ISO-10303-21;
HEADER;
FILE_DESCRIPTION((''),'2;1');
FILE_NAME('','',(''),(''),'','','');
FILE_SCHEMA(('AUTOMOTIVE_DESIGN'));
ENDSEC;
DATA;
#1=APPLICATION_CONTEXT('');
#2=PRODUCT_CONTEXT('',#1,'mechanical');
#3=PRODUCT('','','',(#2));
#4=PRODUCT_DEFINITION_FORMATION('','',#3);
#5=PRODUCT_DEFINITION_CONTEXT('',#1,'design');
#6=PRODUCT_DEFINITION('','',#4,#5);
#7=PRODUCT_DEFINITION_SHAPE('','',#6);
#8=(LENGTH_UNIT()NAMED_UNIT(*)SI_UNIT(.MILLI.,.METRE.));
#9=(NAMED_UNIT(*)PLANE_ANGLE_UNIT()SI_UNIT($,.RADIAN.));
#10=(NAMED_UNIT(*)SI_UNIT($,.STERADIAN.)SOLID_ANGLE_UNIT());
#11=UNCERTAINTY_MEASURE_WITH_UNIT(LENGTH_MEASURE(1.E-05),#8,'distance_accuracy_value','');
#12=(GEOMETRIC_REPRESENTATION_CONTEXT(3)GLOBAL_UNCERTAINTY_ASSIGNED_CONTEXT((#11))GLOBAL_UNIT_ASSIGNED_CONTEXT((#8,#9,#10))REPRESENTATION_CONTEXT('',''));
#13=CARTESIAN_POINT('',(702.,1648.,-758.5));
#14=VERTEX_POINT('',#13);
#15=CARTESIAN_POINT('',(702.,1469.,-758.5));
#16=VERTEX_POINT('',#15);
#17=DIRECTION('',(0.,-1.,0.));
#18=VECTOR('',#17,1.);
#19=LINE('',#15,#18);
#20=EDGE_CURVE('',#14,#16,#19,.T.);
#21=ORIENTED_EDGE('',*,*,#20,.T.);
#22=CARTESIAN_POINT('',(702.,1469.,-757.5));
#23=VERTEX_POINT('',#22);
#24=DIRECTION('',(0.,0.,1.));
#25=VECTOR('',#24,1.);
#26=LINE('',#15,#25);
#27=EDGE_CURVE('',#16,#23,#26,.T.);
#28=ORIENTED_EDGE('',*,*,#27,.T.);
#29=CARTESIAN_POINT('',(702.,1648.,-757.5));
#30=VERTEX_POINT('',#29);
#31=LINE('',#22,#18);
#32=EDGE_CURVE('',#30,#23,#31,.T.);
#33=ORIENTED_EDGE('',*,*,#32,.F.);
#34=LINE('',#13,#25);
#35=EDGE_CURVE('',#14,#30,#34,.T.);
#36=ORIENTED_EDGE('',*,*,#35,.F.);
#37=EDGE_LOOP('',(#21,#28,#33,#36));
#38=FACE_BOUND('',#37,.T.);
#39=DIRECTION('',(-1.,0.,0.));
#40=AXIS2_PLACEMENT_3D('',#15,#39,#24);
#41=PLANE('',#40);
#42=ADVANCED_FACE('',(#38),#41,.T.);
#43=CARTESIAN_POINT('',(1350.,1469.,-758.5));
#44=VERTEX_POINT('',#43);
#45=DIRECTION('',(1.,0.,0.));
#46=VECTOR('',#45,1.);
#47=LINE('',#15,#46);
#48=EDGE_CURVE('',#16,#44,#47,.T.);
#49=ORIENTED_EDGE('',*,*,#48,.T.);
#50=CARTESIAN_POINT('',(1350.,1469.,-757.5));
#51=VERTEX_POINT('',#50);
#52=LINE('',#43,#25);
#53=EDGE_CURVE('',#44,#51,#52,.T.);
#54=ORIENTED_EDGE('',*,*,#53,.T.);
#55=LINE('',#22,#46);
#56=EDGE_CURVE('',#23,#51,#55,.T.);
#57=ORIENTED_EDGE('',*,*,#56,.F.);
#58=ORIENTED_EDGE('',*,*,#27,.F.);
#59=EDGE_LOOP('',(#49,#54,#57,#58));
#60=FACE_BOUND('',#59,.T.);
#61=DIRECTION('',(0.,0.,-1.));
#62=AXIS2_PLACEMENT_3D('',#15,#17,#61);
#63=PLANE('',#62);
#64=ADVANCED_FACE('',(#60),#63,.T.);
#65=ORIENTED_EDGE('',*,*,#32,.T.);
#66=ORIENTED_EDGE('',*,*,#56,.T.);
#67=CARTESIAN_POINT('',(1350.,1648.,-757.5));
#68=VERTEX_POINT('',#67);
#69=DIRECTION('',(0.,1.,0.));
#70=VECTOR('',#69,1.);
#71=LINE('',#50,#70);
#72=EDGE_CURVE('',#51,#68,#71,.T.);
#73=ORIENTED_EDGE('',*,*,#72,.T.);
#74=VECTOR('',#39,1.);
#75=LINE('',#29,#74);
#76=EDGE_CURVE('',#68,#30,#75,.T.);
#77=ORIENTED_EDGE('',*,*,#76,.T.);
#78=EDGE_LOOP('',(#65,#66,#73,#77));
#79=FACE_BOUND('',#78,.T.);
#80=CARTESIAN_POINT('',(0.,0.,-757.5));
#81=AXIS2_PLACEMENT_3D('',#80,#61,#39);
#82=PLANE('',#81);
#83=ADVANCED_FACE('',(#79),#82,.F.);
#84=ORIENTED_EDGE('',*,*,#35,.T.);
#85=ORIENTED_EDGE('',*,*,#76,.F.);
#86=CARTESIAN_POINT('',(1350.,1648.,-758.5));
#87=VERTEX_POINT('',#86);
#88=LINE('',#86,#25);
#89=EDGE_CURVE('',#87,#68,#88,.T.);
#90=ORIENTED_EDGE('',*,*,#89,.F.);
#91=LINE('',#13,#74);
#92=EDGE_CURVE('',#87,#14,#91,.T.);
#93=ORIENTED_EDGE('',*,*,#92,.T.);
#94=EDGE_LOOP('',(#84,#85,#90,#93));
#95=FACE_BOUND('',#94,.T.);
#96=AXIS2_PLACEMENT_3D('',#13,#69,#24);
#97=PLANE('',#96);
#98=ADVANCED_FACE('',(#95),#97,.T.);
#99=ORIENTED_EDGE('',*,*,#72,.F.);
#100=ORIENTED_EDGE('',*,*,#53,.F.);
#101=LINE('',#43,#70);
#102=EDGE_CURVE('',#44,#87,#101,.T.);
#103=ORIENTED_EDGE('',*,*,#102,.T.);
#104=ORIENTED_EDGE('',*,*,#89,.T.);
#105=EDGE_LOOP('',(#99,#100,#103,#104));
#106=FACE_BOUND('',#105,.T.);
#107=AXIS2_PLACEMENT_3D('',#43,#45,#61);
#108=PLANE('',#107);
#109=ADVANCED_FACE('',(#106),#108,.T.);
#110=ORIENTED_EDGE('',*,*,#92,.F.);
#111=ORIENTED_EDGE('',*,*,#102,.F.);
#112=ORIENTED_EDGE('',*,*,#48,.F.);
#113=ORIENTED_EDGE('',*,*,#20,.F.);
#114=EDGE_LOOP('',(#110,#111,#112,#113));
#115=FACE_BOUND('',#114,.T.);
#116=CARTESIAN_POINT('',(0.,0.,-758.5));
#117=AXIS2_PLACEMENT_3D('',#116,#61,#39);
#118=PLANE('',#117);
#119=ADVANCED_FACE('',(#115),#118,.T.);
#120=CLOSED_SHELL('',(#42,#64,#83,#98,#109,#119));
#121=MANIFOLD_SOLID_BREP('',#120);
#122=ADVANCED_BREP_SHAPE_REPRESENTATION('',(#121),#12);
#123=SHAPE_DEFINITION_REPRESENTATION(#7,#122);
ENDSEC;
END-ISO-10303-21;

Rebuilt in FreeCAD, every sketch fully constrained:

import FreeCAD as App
import Part
import Sketcher

V = App.Vector
Q = App.Units.Quantity


def add_polygon(sketch, points):
    """Adds a closed chain of lines whose ends are joined by coincident constraints."""
    first, n = sketch.GeometryCount, len(points)
    for a, b in zip(points, points[1:] + points[:1]):
        sketch.addGeometry(Part.LineSegment(App.Vector(*a, 0), App.Vector(*b, 0)), False)
    for i in range(n):
        sketch.addConstraint(Sketcher.Constraint("Coincident", first + i, 2, first + (i + 1) % n, 1))

doc = App.newDocument("Part")
body = doc.addObject("PartDesign::Body", "Body")

# Sketch on XY plane
sketch1 = body.newObject("Sketcher::SketchObject", "Sketch")
sketch1.AttachmentSupport = (doc.getObject("XY_Plane"), [""])
sketch1.MapMode = "FlatFace"
sketch1.AttachmentOffset = App.Placement(V(0, 0, -757.5), App.Rotation())
add_polygon(sketch1, [(702, 1648), (702, 1469), (1350, 1469), (1350, 1648)])  # lines 0-3
sketch1.addConstraint(Sketcher.Constraint("Vertical", 0))
sketch1.addConstraint(Sketcher.Constraint("Horizontal", 1))
sketch1.addConstraint(Sketcher.Constraint("Vertical", 2))
sketch1.addConstraint(Sketcher.Constraint("Horizontal", 3))
sketch1.addConstraint(Sketcher.Constraint("DistanceX", 1, 1, 1, 2, Q("648 mm")))
sketch1.addConstraint(Sketcher.Constraint("DistanceY", 0, 2, 0, 1, Q("179 mm")))
sketch1.addConstraint(Sketcher.Constraint("DistanceX", -1, 1, 0, 2, Q("702 mm")))
sketch1.addConstraint(Sketcher.Constraint("DistanceY", -1, 1, 0, 2, Q("1469 mm")))
pad1 = body.newObject("PartDesign::Pad", "Pad")
pad1.Profile = sketch1
pad1.Length = 1
pad1.Reversed = True

doc.recompute()
